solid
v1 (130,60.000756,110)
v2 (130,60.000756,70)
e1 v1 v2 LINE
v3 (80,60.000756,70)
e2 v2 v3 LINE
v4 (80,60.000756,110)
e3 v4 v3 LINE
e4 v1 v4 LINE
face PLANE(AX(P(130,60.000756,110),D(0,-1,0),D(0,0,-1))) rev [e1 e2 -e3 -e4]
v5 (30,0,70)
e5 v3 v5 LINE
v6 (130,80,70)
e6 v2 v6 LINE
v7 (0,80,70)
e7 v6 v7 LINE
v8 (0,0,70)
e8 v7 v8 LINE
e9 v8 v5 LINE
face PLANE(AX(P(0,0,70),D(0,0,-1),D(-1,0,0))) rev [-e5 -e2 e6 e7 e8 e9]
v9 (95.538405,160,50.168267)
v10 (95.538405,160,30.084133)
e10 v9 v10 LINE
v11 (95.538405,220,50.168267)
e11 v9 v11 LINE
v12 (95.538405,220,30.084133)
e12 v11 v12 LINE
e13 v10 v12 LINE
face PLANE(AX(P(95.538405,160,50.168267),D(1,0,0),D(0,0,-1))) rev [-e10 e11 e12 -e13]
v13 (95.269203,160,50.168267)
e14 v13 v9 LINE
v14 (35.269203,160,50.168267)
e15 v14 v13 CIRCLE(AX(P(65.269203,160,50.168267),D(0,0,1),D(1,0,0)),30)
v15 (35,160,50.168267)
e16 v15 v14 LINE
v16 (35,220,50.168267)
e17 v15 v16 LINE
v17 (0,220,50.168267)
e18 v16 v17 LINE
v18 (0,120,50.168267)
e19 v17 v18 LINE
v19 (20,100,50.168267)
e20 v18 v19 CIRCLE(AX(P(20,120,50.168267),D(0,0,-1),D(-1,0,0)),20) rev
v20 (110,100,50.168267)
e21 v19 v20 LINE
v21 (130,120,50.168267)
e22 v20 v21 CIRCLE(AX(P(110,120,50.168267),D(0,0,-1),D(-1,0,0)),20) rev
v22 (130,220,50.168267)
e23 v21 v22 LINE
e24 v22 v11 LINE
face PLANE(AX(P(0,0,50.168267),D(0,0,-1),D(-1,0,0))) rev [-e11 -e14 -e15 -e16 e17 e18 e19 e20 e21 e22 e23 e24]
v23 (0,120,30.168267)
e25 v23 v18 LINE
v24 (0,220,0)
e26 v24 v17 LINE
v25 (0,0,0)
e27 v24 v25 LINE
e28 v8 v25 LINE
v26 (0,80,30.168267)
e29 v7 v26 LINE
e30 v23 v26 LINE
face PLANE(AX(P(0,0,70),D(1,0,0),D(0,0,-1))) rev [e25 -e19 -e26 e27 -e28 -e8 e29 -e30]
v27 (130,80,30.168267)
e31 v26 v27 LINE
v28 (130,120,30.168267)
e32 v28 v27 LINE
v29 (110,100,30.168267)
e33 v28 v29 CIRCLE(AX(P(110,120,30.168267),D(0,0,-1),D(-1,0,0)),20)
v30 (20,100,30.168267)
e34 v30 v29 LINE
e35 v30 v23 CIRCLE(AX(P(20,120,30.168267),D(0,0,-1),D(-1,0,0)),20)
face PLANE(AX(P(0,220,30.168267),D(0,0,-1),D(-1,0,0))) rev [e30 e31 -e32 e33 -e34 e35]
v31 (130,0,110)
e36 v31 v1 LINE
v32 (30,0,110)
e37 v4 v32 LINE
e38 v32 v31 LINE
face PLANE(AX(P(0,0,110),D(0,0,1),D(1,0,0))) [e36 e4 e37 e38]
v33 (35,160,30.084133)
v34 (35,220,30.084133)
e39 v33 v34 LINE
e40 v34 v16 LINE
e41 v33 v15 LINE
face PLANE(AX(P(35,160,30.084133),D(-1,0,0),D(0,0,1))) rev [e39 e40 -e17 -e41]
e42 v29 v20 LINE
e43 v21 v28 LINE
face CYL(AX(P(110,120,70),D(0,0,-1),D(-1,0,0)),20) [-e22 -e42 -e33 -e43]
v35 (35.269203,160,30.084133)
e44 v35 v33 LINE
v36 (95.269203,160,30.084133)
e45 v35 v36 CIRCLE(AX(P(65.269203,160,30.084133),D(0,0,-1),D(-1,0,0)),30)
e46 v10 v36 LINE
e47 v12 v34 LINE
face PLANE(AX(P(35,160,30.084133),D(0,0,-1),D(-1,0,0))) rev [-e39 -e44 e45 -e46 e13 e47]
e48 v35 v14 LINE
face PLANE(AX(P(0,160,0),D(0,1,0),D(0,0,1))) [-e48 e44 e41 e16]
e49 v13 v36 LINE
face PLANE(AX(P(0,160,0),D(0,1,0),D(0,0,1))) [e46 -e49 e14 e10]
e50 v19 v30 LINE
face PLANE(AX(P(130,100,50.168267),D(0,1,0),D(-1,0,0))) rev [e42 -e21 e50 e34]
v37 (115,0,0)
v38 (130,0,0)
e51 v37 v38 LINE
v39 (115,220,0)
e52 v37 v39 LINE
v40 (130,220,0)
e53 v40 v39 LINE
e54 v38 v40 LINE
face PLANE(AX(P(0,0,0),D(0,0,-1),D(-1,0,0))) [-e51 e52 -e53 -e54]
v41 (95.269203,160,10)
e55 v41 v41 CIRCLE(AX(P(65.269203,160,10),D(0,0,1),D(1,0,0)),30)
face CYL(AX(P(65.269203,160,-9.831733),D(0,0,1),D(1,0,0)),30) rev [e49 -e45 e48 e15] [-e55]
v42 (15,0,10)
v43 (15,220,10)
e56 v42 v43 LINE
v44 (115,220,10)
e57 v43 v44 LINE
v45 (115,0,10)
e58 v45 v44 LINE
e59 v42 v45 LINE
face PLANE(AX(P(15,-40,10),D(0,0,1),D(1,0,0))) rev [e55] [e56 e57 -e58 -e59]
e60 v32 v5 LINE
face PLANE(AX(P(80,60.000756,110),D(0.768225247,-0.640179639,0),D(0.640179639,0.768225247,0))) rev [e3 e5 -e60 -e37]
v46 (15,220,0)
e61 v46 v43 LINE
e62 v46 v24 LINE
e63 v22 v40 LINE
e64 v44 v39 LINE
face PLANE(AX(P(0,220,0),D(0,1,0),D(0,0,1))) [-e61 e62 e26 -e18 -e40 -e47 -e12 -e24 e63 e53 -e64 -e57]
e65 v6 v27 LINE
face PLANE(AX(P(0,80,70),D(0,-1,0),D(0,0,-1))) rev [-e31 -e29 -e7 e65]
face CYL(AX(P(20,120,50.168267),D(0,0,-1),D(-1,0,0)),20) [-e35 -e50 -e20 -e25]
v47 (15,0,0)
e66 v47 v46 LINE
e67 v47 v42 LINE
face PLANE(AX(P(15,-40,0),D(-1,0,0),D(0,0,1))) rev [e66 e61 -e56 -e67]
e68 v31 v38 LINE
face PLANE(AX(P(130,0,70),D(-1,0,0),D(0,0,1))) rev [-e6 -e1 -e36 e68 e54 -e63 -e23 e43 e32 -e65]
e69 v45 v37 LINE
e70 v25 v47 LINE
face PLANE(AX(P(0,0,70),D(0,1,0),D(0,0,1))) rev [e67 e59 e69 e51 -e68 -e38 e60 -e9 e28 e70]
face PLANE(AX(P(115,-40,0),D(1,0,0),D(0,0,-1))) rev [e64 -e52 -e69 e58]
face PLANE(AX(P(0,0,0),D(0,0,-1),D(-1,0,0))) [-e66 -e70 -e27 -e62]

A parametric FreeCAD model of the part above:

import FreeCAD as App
import Part
import Sketcher
from FreeCAD import Vector
Q = App.Units.Quantity


def edges_at(feature, points):
    """Names of the edges that pass closest to the given points."""
    edges = feature.Shape.Edges
    near = lambda p: min(range(len(edges)), key=lambda i: edges[i].distToShape(Part.Vertex(*p))[0])
    return sorted({f"Edge{near(p) + 1}" for p in points})


def add_polygon(sketch, points):
    """Adds a closed chain of lines whose ends are joined by coincident constraints."""
    first, n = sketch.GeometryCount, len(points)
    for a, b in zip(points, points[1:] + points[:1]):
        sketch.addGeometry(Part.LineSegment(App.Vector(*a, 0), App.Vector(*b, 0)), False)
    for i in range(n):
        sketch.addConstraint(Sketcher.Constraint("Coincident", first + i, 2, first + (i + 1) % n, 1))

doc = App.newDocument("Part")
body = doc.addObject("PartDesign::Body", "Body")

sketch1 = body.newObject("Sketcher::SketchObject", "Sketch")
sketch1.AttachmentSupport = (doc.getObject("XY_Plane"), [""])
sketch1.MapMode = "FlatFace"
add_polygon(sketch1, [(0, 80), (0, 0), (130, 0), (130, 80)])
sketch1.addConstraint(Sketcher.Constraint("Vertical", 0))
sketch1.addConstraint(Sketcher.Constraint("Horizontal", 1))
sketch1.addConstraint(Sketcher.Constraint("Vertical", 2))
sketch1.addConstraint(Sketcher.Constraint("Horizontal", 3))
sketch1.addConstraint(Sketcher.Constraint("Coincident", 0, 2, -1, 1))
sketch1.addConstraint(Sketcher.Constraint("DistanceX", 1, 1, 1, 2, Q("130 mm")))
sketch1.addConstraint(Sketcher.Constraint("DistanceY", 0, 2, 0, 1, Q("80 mm")))
pad1 = body.newObject("PartDesign::Pad", "Pad")
pad1.Profile = sketch1
pad1.Length = 70

sketch2 = body.newObject("Sketcher::SketchObject", "Sketch001")
sketch2.AttachmentSupport = (doc.getObject("XY_Plane"), [""])
sketch2.MapMode = "FlatFace"
sketch2.AttachmentOffset = App.Placement(Vector(0, 0, 70), App.Rotation())
add_polygon(sketch2, [(30, 0), (130, 0), (130, 60), (80, 60)])
sketch2.addConstraint(Sketcher.Constraint("Horizontal", 0))
sketch2.addConstraint(Sketcher.Constraint("Vertical", 1))
sketch2.addConstraint(Sketcher.Constraint("Horizontal", 2))
sketch2.addConstraint(Sketcher.Constraint("PointOnObject", 0, 2, -1))
sketch2.addConstraint(Sketcher.Constraint("DistanceX", 0, 1, 0, 2, Q("100 mm")))
sketch2.addConstraint(Sketcher.Constraint("DistanceX", 2, 2, 2, 1, Q("50 mm")))
sketch2.addConstraint(Sketcher.Constraint("DistanceX", -1, 1, 0, 2, Q("130 mm")))
sketch2.addConstraint(Sketcher.Constraint("DistanceY", 1, 1, 1, 2, Q("60.000756 mm")))
pad2 = body.newObject("PartDesign::Pad", "Pad001")
pad2.Profile = sketch2
pad2.Length = 40

sketch3 = body.newObject("Sketcher::SketchObject", "Sketch002")
sketch3.AttachmentSupport = (doc.getObject("XZ_Plane"), [""])
sketch3.MapMode = "FlatFace"
sketch3.AttachmentOffset = App.Placement(Vector(0, 0, -80), App.Rotation())
add_polygon(sketch3, [(0, 0), (0, 30), (130, 30), (130, 0)])
sketch3.addConstraint(Sketcher.Constraint("Vertical", 0))
sketch3.addConstraint(Sketcher.Constraint("Horizontal", 1))
sketch3.addConstraint(Sketcher.Constraint("Vertical", 2))
sketch3.addConstraint(Sketcher.Constraint("Horizontal", 3))
sketch3.addConstraint(Sketcher.Constraint("Coincident", 3, 2, -1, 1))
sketch3.addConstraint(Sketcher.Constraint("DistanceX", 1, 1, 1, 2, Q("130 mm")))
sketch3.addConstraint(Sketcher.Constraint("DistanceY", 0, 1, 0, 2, Q("30.168267 mm")))
pad3 = body.newObject("PartDesign::Pad", "Pad002")
pad3.Profile = sketch3
pad3.Length = 140
pad3.Reversed = True

sketch4 = body.newObject("Sketcher::SketchObject", "Sketch003")
sketch4.AttachmentSupport = (doc.getObject("XY_Plane"), [""])
sketch4.MapMode = "FlatFace"
sketch4.AttachmentOffset = App.Placement(Vector(0, 0, 30.168267), App.Rotation())
add_polygon(sketch4, [(0, 220), (0, 100), (130, 100), (130, 220)])
sketch4.addConstraint(Sketcher.Constraint("Vertical", 0))
sketch4.addConstraint(Sketcher.Constraint("Horizontal", 1))
sketch4.addConstraint(Sketcher.Constraint("Vertical", 2))
sketch4.addConstraint(Sketcher.Constraint("Horizontal", 3))
sketch4.addConstraint(Sketcher.Constraint("PointOnObject", 0, 2, -2))
sketch4.addConstraint(Sketcher.Constraint("DistanceX", 1, 1, 1, 2, Q("130 mm")))
sketch4.addConstraint(Sketcher.Constraint("DistanceY", 0, 2, 0, 1, Q("120 mm")))
sketch4.addConstraint(Sketcher.Constraint("DistanceY", -1, 1, 0, 2, Q("100 mm")))
pad4 = body.newObject("PartDesign::Pad", "Pad003")
pad4.Profile = sketch4
pad4.Length = 20

sketch5 = body.newObject("Sketcher::SketchObject", "Sketch004")
sketch5.AttachmentSupport = (doc.getObject("XZ_Plane"), [""])
sketch5.MapMode = "FlatFace"
sketch5.AttachmentOffset = App.Placement(Vector(0, 0, -220), App.Rotation())
add_polygon(sketch5, [(15, 0), (15, 10), (115, 10), (115, 0)])
sketch5.addConstraint(Sketcher.Constraint("Vertical", 0))
sketch5.addConstraint(Sketcher.Constraint("Horizontal", 1))
sketch5.addConstraint(Sketcher.Constraint("Vertical", 2))
sketch5.addConstraint(Sketcher.Constraint("Horizontal", 3))
sketch5.addConstraint(Sketcher.Constraint("PointOnObject", 2, 2, -1))
sketch5.addConstraint(Sketcher.Constraint("DistanceX", 1, 1, 1, 2, Q("100 mm")))
sketch5.addConstraint(Sketcher.Constraint("DistanceY", 0, 1, 0, 2, Q("10 mm")))
sketch5.addConstraint(Sketcher.Constraint("DistanceX", -1, 1, 0, 2, Q("15 mm")))
pocket1 = body.newObject("PartDesign::Pocket", "Pocket")
pocket1.Profile = sketch5
pocket1.Length = 260
pocket1.Reversed = True
doc.recompute()

fillet = body.newObject("PartDesign::Fillet", "Fillet")
fillet.Base = (pocket1, edges_at(pocket1, [(0, 100, 40.168)]))
fillet.Radius = 20
doc.recompute()

fillet2 = body.newObject("PartDesign::Fillet", "Fillet001")
fillet2.Base = (fillet, edges_at(fillet, [(130, 100, 40.168)]))
fillet2.Radius = 20

sketch6 = body.newObject("Sketcher::SketchObject", "Sketch005")
sketch6.AttachmentSupport = (doc.getObject("XZ_Plane"), [""])
sketch6.MapMode = "FlatFace"
sketch6.AttachmentOffset = App.Placement(Vector(0, 0, -220), App.Rotation())
add_polygon(sketch6, [(35, 30), (35, 50), (96, 50), (96, 30)])
sketch6.addConstraint(Sketcher.Constraint("Vertical", 0))
sketch6.addConstraint(Sketcher.Constraint("Horizontal", 1))
sketch6.addConstraint(Sketcher.Constraint("Vertical", 2))
sketch6.addConstraint(Sketcher.Constraint("Horizontal", 3))
sketch6.addConstraint(Sketcher.Constraint("DistanceX", -1, 1, 0, 2, Q("35 mm")))
sketch6.addConstraint(Sketcher.Constraint("DistanceX", 1, 1, 1, 2, Q("60.538405 mm")))
sketch6.addConstraint(Sketcher.Constraint("DistanceY", 0, 1, 0, 2, Q("20.084133 mm")))
sketch6.addConstraint(Sketcher.Constraint("DistanceY", -1, 1, 0, 2, Q("50.168267 mm")))
pocket2 = body.newObject("PartDesign::Pocket", "Pocket001")
pocket2.Profile = sketch6
pocket2.Length = 60
pocket2.Reversed = True

sketch7 = body.newObject("Sketcher::SketchObject", "Sketch006")
sketch7.AttachmentSupport = (doc.getObject("XY_Plane"), [""])
sketch7.MapMode = "FlatFace"
sketch7.AttachmentOffset = App.Placement(Vector(0, 0, 50.168267), App.Rotation())
sketch7.addGeometry(Part.Circle(Vector(65, 160, 0), Vector(0, 0, 1), 30), False)
sketch7.addConstraint(Sketcher.Constraint("Diameter", 0, Q("60 mm")))
sketch7.addConstraint(Sketcher.Constraint("DistanceY", -1, 1, 0, 3, Q("160 mm")))
sketch7.addConstraint(Sketcher.Constraint("DistanceX", -1, 1, 0, 3, Q("65.269203 mm")))
pocket3 = body.newObject("PartDesign::Pocket", "Pocket002")
pocket3.Profile = sketch7
pocket3.Length = 60

doc.recompute()
